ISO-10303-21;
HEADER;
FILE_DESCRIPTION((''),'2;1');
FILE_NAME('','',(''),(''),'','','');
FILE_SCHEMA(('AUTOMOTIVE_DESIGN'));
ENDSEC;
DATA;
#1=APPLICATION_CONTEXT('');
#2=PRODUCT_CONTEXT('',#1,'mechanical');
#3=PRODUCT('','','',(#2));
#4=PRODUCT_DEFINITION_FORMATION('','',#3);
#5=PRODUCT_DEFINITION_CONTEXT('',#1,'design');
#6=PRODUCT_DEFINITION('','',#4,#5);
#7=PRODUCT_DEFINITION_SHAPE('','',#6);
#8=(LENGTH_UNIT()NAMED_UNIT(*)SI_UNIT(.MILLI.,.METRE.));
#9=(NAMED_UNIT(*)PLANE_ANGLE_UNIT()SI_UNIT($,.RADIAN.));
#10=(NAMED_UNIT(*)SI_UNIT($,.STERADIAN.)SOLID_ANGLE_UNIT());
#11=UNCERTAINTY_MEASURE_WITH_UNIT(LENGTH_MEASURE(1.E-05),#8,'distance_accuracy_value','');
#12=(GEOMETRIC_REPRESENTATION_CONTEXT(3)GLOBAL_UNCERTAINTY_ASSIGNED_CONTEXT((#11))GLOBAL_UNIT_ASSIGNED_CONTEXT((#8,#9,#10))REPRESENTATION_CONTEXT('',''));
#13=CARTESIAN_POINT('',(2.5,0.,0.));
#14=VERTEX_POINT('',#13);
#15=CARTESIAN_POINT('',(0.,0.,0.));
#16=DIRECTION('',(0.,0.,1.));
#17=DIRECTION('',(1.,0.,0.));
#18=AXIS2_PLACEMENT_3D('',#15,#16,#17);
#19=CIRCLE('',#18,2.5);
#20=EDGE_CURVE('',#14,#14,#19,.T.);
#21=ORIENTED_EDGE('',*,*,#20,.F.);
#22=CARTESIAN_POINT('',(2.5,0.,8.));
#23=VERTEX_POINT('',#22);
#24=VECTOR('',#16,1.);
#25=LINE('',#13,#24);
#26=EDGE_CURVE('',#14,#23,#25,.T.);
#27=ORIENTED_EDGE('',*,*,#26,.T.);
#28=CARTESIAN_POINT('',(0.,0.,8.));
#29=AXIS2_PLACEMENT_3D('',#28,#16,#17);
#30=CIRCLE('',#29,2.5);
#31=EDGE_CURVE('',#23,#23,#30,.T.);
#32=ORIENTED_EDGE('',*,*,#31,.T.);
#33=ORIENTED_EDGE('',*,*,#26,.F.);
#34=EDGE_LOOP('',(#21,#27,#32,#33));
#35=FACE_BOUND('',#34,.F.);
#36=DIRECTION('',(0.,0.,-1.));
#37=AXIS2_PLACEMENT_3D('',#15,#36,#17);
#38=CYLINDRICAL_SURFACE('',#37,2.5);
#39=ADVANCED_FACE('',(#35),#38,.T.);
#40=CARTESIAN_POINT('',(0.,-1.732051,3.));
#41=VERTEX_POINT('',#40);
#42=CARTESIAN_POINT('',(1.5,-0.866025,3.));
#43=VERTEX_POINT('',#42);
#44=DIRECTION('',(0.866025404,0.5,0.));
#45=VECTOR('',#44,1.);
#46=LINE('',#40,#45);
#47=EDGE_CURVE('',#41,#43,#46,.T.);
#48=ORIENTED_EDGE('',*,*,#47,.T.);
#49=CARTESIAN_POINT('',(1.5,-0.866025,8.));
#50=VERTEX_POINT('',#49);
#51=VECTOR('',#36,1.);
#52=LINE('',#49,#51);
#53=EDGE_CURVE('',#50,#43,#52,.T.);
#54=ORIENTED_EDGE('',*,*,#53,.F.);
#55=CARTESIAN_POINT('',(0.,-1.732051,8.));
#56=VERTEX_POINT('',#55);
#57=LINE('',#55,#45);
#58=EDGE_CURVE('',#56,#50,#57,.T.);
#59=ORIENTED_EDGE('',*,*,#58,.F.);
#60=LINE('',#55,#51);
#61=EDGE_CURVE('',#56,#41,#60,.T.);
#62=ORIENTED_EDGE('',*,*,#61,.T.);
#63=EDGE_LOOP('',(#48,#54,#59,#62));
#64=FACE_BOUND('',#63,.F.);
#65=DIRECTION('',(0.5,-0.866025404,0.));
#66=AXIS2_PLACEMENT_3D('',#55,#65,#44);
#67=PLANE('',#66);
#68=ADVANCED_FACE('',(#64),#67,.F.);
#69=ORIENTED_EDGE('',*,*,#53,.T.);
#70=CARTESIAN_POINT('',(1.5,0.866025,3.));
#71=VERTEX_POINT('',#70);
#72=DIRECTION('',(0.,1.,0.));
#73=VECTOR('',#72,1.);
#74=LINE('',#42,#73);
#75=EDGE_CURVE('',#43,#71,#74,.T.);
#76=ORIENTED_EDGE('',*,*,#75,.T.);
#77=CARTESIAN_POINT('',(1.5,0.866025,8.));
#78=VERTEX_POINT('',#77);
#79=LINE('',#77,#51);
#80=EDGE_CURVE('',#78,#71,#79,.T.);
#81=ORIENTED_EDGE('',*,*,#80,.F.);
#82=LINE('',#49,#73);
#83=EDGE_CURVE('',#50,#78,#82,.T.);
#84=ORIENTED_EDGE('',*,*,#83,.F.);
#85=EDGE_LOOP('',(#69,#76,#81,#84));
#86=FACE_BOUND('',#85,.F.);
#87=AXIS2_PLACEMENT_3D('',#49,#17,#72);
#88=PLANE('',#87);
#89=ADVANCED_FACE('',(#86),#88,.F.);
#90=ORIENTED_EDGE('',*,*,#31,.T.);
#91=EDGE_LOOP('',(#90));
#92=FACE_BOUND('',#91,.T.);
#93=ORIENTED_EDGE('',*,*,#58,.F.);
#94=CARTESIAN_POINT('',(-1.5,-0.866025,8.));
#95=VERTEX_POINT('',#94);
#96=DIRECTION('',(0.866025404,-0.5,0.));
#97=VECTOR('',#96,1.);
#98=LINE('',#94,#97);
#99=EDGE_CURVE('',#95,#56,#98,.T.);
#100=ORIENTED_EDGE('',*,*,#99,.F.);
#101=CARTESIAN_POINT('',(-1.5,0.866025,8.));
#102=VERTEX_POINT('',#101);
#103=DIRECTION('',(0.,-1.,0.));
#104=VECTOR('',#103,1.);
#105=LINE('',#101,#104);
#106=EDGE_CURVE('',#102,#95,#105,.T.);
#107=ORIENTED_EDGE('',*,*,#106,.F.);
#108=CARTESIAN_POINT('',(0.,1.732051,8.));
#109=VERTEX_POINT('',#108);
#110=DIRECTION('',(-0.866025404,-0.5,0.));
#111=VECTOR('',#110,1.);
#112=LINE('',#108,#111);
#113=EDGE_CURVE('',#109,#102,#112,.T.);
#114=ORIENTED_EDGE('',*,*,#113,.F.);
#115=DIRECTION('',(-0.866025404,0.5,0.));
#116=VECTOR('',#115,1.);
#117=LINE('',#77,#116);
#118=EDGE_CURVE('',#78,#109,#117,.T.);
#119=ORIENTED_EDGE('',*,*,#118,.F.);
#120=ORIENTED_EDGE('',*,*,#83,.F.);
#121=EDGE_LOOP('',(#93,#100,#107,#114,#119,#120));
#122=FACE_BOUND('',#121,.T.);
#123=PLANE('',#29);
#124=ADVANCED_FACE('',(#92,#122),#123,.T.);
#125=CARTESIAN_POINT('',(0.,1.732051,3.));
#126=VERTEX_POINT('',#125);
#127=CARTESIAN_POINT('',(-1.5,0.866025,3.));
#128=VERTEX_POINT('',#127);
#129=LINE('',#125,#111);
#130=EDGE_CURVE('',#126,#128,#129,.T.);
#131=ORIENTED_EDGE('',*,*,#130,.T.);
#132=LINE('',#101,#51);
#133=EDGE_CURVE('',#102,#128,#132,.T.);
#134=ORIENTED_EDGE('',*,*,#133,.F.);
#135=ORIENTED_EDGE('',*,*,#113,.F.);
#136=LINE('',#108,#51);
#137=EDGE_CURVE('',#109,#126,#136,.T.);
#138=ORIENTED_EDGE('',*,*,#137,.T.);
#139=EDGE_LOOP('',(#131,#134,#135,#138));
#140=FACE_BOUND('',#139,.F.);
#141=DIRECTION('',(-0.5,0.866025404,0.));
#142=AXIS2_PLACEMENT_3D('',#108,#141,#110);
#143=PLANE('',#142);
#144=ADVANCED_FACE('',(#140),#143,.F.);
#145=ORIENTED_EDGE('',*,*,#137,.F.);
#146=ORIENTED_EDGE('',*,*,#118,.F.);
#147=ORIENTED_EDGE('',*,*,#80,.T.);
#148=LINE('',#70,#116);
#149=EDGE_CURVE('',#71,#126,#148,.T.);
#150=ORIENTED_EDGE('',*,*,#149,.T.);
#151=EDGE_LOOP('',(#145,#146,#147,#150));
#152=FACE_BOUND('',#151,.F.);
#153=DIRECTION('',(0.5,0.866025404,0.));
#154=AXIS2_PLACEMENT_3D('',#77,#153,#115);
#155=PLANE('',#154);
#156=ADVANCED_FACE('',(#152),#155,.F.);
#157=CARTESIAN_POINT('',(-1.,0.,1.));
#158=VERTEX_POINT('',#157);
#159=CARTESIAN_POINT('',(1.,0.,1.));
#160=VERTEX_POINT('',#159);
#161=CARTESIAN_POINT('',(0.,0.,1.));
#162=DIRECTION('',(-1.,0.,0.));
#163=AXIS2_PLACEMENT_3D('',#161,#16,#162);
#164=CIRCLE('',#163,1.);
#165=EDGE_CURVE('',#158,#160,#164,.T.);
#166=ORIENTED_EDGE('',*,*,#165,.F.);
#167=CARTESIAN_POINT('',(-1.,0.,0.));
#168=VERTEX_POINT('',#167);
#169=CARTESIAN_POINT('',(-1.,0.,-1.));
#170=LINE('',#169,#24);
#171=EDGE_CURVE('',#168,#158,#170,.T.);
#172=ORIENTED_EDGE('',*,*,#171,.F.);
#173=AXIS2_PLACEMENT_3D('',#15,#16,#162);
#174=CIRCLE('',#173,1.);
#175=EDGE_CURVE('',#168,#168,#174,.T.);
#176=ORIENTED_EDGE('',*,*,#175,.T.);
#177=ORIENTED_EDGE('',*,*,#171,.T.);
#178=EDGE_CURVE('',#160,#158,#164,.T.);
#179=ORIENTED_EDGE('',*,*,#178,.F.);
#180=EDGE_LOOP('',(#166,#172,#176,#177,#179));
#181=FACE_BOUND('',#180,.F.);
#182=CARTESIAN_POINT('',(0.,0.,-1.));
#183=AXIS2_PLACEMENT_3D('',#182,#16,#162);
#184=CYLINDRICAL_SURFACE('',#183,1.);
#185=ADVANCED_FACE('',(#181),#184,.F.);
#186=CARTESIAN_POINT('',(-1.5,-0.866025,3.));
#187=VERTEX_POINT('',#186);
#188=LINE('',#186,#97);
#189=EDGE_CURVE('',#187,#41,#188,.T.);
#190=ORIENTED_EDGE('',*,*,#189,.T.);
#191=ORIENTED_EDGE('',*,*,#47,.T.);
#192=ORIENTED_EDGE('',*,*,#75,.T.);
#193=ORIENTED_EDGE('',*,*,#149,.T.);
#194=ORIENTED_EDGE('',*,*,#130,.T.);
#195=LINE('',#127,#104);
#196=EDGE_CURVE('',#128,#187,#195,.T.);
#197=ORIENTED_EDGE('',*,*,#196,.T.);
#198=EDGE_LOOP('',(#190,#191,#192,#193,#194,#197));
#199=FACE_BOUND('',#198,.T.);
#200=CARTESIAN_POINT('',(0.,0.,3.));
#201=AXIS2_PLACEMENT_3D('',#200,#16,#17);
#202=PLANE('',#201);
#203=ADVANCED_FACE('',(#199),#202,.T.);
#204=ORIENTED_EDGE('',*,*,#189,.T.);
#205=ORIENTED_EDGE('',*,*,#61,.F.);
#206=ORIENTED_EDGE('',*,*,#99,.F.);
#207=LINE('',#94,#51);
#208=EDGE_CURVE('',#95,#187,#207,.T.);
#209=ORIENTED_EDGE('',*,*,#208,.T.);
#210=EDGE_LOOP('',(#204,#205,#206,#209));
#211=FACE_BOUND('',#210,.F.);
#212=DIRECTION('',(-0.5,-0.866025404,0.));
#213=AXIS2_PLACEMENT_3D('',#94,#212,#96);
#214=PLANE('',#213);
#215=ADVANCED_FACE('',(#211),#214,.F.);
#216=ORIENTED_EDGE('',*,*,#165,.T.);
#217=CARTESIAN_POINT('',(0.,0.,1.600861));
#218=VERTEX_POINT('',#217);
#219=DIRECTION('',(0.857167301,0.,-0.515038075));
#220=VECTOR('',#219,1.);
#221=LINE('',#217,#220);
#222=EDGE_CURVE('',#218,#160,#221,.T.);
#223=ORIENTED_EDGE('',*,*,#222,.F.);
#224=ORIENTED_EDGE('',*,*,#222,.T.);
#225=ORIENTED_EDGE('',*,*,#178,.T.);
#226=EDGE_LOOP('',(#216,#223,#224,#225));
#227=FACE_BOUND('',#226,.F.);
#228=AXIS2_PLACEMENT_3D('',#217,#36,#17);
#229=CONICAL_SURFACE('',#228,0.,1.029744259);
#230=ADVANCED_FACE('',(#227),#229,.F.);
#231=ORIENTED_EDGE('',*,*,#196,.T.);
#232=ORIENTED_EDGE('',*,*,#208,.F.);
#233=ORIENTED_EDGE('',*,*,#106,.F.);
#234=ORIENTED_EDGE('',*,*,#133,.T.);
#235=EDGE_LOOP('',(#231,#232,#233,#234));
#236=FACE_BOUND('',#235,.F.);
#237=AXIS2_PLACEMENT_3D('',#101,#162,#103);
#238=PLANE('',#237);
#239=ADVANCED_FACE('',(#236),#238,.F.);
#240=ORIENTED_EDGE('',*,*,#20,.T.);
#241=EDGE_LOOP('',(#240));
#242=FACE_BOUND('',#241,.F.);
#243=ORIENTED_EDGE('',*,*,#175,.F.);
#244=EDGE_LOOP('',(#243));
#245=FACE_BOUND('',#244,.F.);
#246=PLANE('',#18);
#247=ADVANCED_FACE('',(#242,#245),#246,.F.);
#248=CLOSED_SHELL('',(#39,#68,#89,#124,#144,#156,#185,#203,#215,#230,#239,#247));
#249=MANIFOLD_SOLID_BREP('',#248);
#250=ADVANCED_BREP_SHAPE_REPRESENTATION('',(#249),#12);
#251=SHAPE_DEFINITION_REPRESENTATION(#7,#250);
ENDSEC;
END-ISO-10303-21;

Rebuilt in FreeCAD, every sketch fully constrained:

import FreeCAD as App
import Part
import Sketcher

V = App.Vector
Q = App.Units.Quantity

doc = App.newDocument("Part")
body = doc.addObject("PartDesign::Body", "Body")

sketch1 = body.newObject("Sketcher::SketchObject", "Sketch")
sketch1.AttachmentSupport = (doc.getObject("XY_Plane"), [""])
sketch1.MapMode = "FlatFace"
sketch1.addGeometry(Part.Circle(V(0, 0, 0), V(0, 0, 1), 2.5), False)
sketch1.addConstraint(Sketcher.Constraint("Coincident", 0, 3, -1, 1))
sketch1.addConstraint(Sketcher.Constraint("Diameter", 0, 5.0))
pad1 = body.newObject("PartDesign::Pad", "Pad")
pad1.Profile = sketch1
pad1.Length = 8

sketch2 = body.newObject("Sketcher::SketchObject", "Sketch001")
sketch2.AttachmentSupport = (doc.getObject("XY_Plane"), [""])
sketch2.MapMode = "FlatFace"
sketch2.AttachmentOffset = App.Placement(V(0, 0, 8), App.Rotation())
sketch2.addGeometry(Part.LineSegment(V(1.5, -0.9, 0), V(1.5, 0.9, 0)), False)
sketch2.addGeometry(Part.LineSegment(V(1.5, 0.9, 0), V(0, 1.7, 0)), False)
sketch2.addGeometry(Part.LineSegment(V(0, 1.7, 0), V(-1.5, 0.9, 0)), False)
sketch2.addGeometry(Part.LineSegment(V(-1.5, 0.9, 0), V(-1.5, -0.9, 0)), False)
sketch2.addGeometry(Part.LineSegment(V(-1.5, -0.9, 0), V(0, -1.7, 0)), False)
sketch2.addGeometry(Part.LineSegment(V(0, -1.7, 0), V(1.5, -0.9, 0)), False)
sketch2.addConstraint(Sketcher.Constraint("Coincident", 0, 2, 1, 1))
sketch2.addConstraint(Sketcher.Constraint("Coincident", 1, 2, 2, 1))
sketch2.addConstraint(Sketcher.Constraint("Coincident", 2, 2, 3, 1))
sketch2.addConstraint(Sketcher.Constraint("Coincident", 3, 2, 4, 1))
sketch2.addConstraint(Sketcher.Constraint("Coincident", 4, 2, 5, 1))
sketch2.addConstraint(Sketcher.Constraint("Coincident", 5, 2, 0, 1))
sketch2.addConstraint(Sketcher.Constraint("Vertical", 0))
sketch2.addConstraint(Sketcher.Constraint("Vertical", 3))
sketch2.addConstraint(Sketcher.Constraint("Symmetric", 0, 2, 3, 2, -1, 1))
sketch2.addConstraint(Sketcher.Constraint("Symmetric", 1, 2, 4, 2, -1, 1))
sketch2.addConstraint(Sketcher.Constraint("PointOnObject", 1, 2, -2))
sketch2.addConstraint(Sketcher.Constraint("Parallel", 2, 5))
sketch2.addConstraint(Sketcher.Constraint("Horizontal", 0, 2, 2, 2))
sketch2.addConstraint(Sketcher.Constraint("Angle", 1, Q("150 deg")))
sketch2.addConstraint(Sketcher.Constraint("DistanceX", 2, 2, 0, 2, 3.0))
sketch2.addConstraint(Sketcher.Constraint("DistanceY", 0, 1, 0, 2, 1.732051))
pocket1 = body.newObject("PartDesign::Pocket", "Pocket")
pocket1.Profile = sketch2
pocket1.Length = 5

sketch3 = body.newObject("Sketcher::SketchObject", "Sketch002")
sketch3.AttachmentSupport = (doc.getObject("XY_Plane"), [""])
sketch3.MapMode = "FlatFace"
sketch3.addGeometry(Part.Circle(V(0, 0, 0), V(0, 0, 1), 1), False)
sketch3.addConstraint(Sketcher.Constraint("Coincident", 0, 3, -1, 1))
sketch3.addConstraint(Sketcher.Constraint("Diameter", 0, 2.0))
doc.recompute()
hole = body.newObject("PartDesign::Hole", "Hole")
hole.Profile = sketch3
hole.ThreadType = "None"
hole.Diameter = 2
hole.DepthType = "Dimension"
hole.Depth = 1
hole.DrillPoint = "Angled"
hole.DrillPointAngle = 118
hole.Reversed = True

doc.recompute()
